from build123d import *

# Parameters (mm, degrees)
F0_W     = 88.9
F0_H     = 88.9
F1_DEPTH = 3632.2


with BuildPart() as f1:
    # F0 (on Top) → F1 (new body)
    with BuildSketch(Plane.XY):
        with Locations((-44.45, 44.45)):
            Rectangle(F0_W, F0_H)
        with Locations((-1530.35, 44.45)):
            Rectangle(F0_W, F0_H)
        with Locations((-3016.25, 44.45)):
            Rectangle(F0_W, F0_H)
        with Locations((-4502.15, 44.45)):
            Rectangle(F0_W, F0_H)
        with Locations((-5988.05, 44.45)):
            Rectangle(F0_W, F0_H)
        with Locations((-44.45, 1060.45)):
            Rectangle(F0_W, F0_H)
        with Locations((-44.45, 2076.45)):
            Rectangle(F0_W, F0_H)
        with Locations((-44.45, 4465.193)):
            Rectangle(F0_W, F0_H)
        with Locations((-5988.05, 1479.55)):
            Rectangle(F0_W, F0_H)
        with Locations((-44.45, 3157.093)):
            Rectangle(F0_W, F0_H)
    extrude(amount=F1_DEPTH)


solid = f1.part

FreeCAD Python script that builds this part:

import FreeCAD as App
import Part
import Sketcher
Q = App.Units.Quantity

doc = App.newDocument("Part")
body = doc.addObject("PartDesign::Body", "Body")
body.AllowCompound = True

# Sketch on XY plane
sketch1 = body.newObject("Sketcher::SketchObject", "Sketch")
sketch1.AttachmentSupport = (doc.getObject("XY_Plane"), [""])
sketch1.MapMode = "FlatFace"
sketch1.addGeometry(Part.LineSegment(App.Vector(-88.9, 88.9, 0), App.Vector(-88.9, 0, 0)), False)
sketch1.addGeometry(Part.LineSegment(App.Vector(-88.9, 0, 0), App.Vector(0, 0, 0)), False)
sketch1.addGeometry(Part.LineSegment(App.Vector(0, 0, 0), App.Vector(0, 88.9, 0)), False)
sketch1.addGeometry(Part.LineSegment(App.Vector(0, 88.9, 0), App.Vector(-88.9, 88.9, 0)), False)
sketch1.addGeometry(Part.LineSegment(App.Vector(-1574.8, 88.9, 0), App.Vector(-1574.8, 0, 0)), False)
sketch1.addGeometry(Part.LineSegment(App.Vector(-1574.8, 0, 0), App.Vector(-1485.9, 0, 0)), False)
sketch1.addGeometry(Part.LineSegment(App.Vector(-1485.9, 0, 0), App.Vector(-1485.9, 88.9, 0)), False)
sketch1.addGeometry(Part.LineSegment(App.Vector(-1485.9, 88.9, 0), App.Vector(-1574.8, 88.9, 0)), False)
sketch1.addGeometry(Part.LineSegment(App.Vector(-3060.7, 88.9, 0), App.Vector(-3060.7, 0, 0)), False)
sketch1.addGeometry(Part.LineSegment(App.Vector(-3060.7, 0, 0), App.Vector(-2971.8, 0, 0)), False)
sketch1.addGeometry(Part.LineSegment(App.Vector(-2971.8, 0, 0), App.Vector(-2971.8, 88.9, 0)), False)
sketch1.addGeometry(Part.LineSegment(App.Vector(-2971.8, 88.9, 0), App.Vector(-3060.7, 88.9, 0)), False)
sketch1.addGeometry(Part.LineSegment(App.Vector(-4546.6, 88.9, 0), App.Vector(-4546.6, 0, 0)), False)
sketch1.addGeometry(Part.LineSegment(App.Vector(-4546.6, 0, 0), App.Vector(-4457.7, 0, 0)), False)
sketch1.addGeometry(Part.LineSegment(App.Vector(-4457.7, 0, 0), App.Vector(-4457.7, 88.9, 0)), False)
sketch1.addGeometry(Part.LineSegment(App.Vector(-4457.7, 88.9, 0), App.Vector(-4546.6, 88.9, 0)), False)
sketch1.addGeometry(Part.LineSegment(App.Vector(-6032.5, 88.9, 0), App.Vector(-6032.5, 0, 0)), False)
sketch1.addGeometry(Part.LineSegment(App.Vector(-6032.5, 0, 0), App.Vector(-5943.6, 0, 0)), False)
sketch1.addGeometry(Part.LineSegment(App.Vector(-5943.6, 0, 0), App.Vector(-5943.6, 88.9, 0)), False)
sketch1.addGeometry(Part.LineSegment(App.Vector(-5943.6, 88.9, 0), App.Vector(-6032.5, 88.9, 0)), False)
sketch1.addGeometry(Part.LineSegment(App.Vector(-88.9, 1104.9, 0), App.Vector(-88.9, 1016, 0)), False)
sketch1.addGeometry(Part.LineSegment(App.Vector(-88.9, 1016, 0), App.Vector(0, 1016, 0)), False)
sketch1.addGeometry(Part.LineSegment(App.Vector(0, 1016, 0), App.Vector(0, 1104.9, 0)), False)
sketch1.addGeometry(Part.LineSegment(App.Vector(0, 1104.9, 0), App.Vector(-88.9, 1104.9, 0)), False)
sketch1.addGeometry(Part.LineSegment(App.Vector(-88.9, 2120.9, 0), App.Vector(-88.9, 2032, 0)), False)
sketch1.addGeometry(Part.LineSegment(App.Vector(-88.9, 2032, 0), App.Vector(0, 2032, 0)), False)
sketch1.addGeometry(Part.LineSegment(App.Vector(0, 2032, 0), App.Vector(0, 2120.9, 0)), False)
sketch1.addGeometry(Part.LineSegment(App.Vector(0, 2120.9, 0), App.Vector(-88.9, 2120.9, 0)), False)
sketch1.addGeometry(Part.LineSegment(App.Vector(-88.9, 4509.643, 0), App.Vector(-88.9, 4420.743, 0)), False)
sketch1.addGeometry(Part.LineSegment(App.Vector(-88.9, 4420.743, 0), App.Vector(0, 4420.743, 0)), False)
sketch1.addGeometry(Part.LineSegment(App.Vector(0, 4420.743, 0), App.Vector(0, 4509.643, 0)), False)
sketch1.addGeometry(Part.LineSegment(App.Vector(0, 4509.643, 0), App.Vector(-88.9, 4509.643, 0)), False)
sketch1.addGeometry(Part.LineSegment(App.Vector(-6032.5, 1524, 0), App.Vector(-6032.5, 1435.1, 0)), False)
sketch1.addGeometry(Part.LineSegment(App.Vector(-6032.5, 1435.1, 0), App.Vector(-5943.6, 1435.1, 0)), False)
sketch1.addGeometry(Part.LineSegment(App.Vector(-5943.6, 1435.1, 0), App.Vector(-5943.6, 1524, 0)), False)
sketch1.addGeometry(Part.LineSegment(App.Vector(-5943.6, 1524, 0), App.Vector(-6032.5, 1524, 0)), False)
sketch1.addGeometry(Part.LineSegment(App.Vector(-88.9, 3201.543, 0), App.Vector(-88.9, 3112.643, 0)), False)
sketch1.addGeometry(Part.LineSegment(App.Vector(-88.9, 3112.643, 0), App.Vector(0, 3112.643, 0)), False)
sketch1.addGeometry(Part.LineSegment(App.Vector(0, 3112.643, 0), App.Vector(0, 3201.543, 0)), False)
sketch1.addGeometry(Part.LineSegment(App.Vector(0, 3201.543, 0), App.Vector(-88.9, 3201.543, 0)), False)
sketch1.addConstraint(Sketcher.Constraint("Coincident", 0, 2, 1, 1))
sketch1.addConstraint(Sketcher.Constraint("Coincident", 1, 2, 2, 1))
sketch1.addConstraint(Sketcher.Constraint("Coincident", 2, 2, 3, 1))
sketch1.addConstraint(Sketcher.Constraint("Coincident", 3, 2, 0, 1))
sketch1.addConstraint(Sketcher.Constraint("Coincident", 4, 2, 5, 1))
sketch1.addConstraint(Sketcher.Constraint("Coincident", 5, 2, 6, 1))
sketch1.addConstraint(Sketcher.Constraint("Coincident", 6, 2, 7, 1))
sketch1.addConstraint(Sketcher.Constraint("Coincident", 7, 2, 4, 1))
sketch1.addConstraint(Sketcher.Constraint("Coincident", 8, 2, 9, 1))
sketch1.addConstraint(Sketcher.Constraint("Coincident", 9, 2, 10, 1))
sketch1.addConstraint(Sketcher.Constraint("Coincident", 10, 2, 11, 1))
sketch1.addConstraint(Sketcher.Constraint("Coincident", 11, 2, 8, 1))
sketch1.addConstraint(Sketcher.Constraint("Coincident", 12, 2, 13, 1))
sketch1.addConstraint(Sketcher.Constraint("Coincident", 13, 2, 14, 1))
sketch1.addConstraint(Sketcher.Constraint("Coincident", 14, 2, 15, 1))
sketch1.addConstraint(Sketcher.Constraint("Coincident", 15, 2, 12, 1))
sketch1.addConstraint(Sketcher.Constraint("Coincident", 16, 2, 17, 1))
sketch1.addConstraint(Sketcher.Constraint("Coincident", 17, 2, 18, 1))
sketch1.addConstraint(Sketcher.Constraint("Coincident", 18, 2, 19, 1))
sketch1.addConstraint(Sketcher.Constraint("Coincident", 19, 2, 16, 1))
sketch1.addConstraint(Sketcher.Constraint("Coincident", 20, 2, 21, 1))
sketch1.addConstraint(Sketcher.Constraint("Coincident", 21, 2, 22, 1))
sketch1.addConstraint(Sketcher.Constraint("Coincident", 22, 2, 23, 1))
sketch1.addConstraint(Sketcher.Constraint("Coincident", 23, 2, 20, 1))
sketch1.addConstraint(Sketcher.Constraint("Coincident", 24, 2, 25, 1))
sketch1.addConstraint(Sketcher.Constraint("Coincident", 25, 2, 26, 1))
sketch1.addConstraint(Sketcher.Constraint("Coincident", 26, 2, 27, 1))
sketch1.addConstraint(Sketcher.Constraint("Coincident", 27, 2, 24, 1))
sketch1.addConstraint(Sketcher.Constraint("Coincident", 28, 2, 29, 1))
sketch1.addConstraint(Sketcher.Constraint("Coincident", 29, 2, 30, 1))
sketch1.addConstraint(Sketcher.Constraint("Coincident", 30, 2, 31, 1))
sketch1.addConstraint(Sketcher.Constraint("Coincident", 31, 2, 28, 1))
sketch1.addConstraint(Sketcher.Constraint("Coincident", 32, 2, 33, 1))
sketch1.addConstraint(Sketcher.Constraint("Coincident", 33, 2, 34, 1))
sketch1.addConstraint(Sketcher.Constraint("Coincident", 34, 2, 35, 1))
sketch1.addConstraint(Sketcher.Constraint("Coincident", 35, 2, 32, 1))
sketch1.addConstraint(Sketcher.Constraint("Coincident", 36, 2, 37, 1))
sketch1.addConstraint(Sketcher.Constraint("Coincident", 37, 2, 38, 1))
sketch1.addConstraint(Sketcher.Constraint("Coincident", 38, 2, 39, 1))
sketch1.addConstraint(Sketcher.Constraint("Coincident", 39, 2, 36, 1))
sketch1.addConstraint(Sketcher.Constraint("Vertical", 0))
sketch1.addConstraint(Sketcher.Constraint("Horizontal", 1))
sketch1.addConstraint(Sketcher.Constraint("Vertical", 2))
sketch1.addConstraint(Sketcher.Constraint("Horizontal", 3))
sketch1.addConstraint(Sketcher.Constraint("Vertical", 4))
sketch1.addConstraint(Sketcher.Constraint("Horizontal", 5))
sketch1.addConstraint(Sketcher.Constraint("Vertical", 6))
sketch1.addConstraint(Sketcher.Constraint("Horizontal", 7))
sketch1.addConstraint(Sketcher.Constraint("Vertical", 8))
sketch1.addConstraint(Sketcher.Constraint("Horizontal", 9))
sketch1.addConstraint(Sketcher.Constraint("Vertical", 10))
sketch1.addConstraint(Sketcher.Constraint("Horizontal", 11))
sketch1.addConstraint(Sketcher.Constraint("Vertical", 12))
sketch1.addConstraint(Sketcher.Constraint("Horizontal", 13))
sketch1.addConstraint(Sketcher.Constraint("Vertical", 14))
sketch1.addConstraint(Sketcher.Constraint("Horizontal", 15))
sketch1.addConstraint(Sketcher.Constraint("Vertical", 16))
sketch1.addConstraint(Sketcher.Constraint("Horizontal", 17))
sketch1.addConstraint(Sketcher.Constraint("Vertical", 18))
sketch1.addConstraint(Sketcher.Constraint("Horizontal", 19))
sketch1.addConstraint(Sketcher.Constraint("Vertical", 20))
sketch1.addConstraint(Sketcher.Constraint("Horizontal", 21))
sketch1.addConstraint(Sketcher.Constraint("Vertical", 22))
sketch1.addConstraint(Sketcher.Constraint("Horizontal", 23))
sketch1.addConstraint(Sketcher.Constraint("Vertical", 24))
sketch1.addConstraint(Sketcher.Constraint("Horizontal", 25))
sketch1.addConstraint(Sketcher.Constraint("Vertical", 26))
sketch1.addConstraint(Sketcher.Constraint("Horizontal", 27))
sketch1.addConstraint(Sketcher.Constraint("Vertical", 28))
sketch1.addConstraint(Sketcher.Constraint("Horizontal", 29))
sketch1.addConstraint(Sketcher.Constraint("Vertical", 30))
sketch1.addConstraint(Sketcher.Constraint("Horizontal", 31))
sketch1.addConstraint(Sketcher.Constraint("Vertical", 32))
sketch1.addConstraint(Sketcher.Constraint("Horizontal", 33))
sketch1.addConstraint(Sketcher.Constraint("Vertical", 34))
sketch1.addConstraint(Sketcher.Constraint("Horizontal", 35))
sketch1.addConstraint(Sketcher.Constraint("Vertical", 36))
sketch1.addConstraint(Sketcher.Constraint("Horizontal", 37))
sketch1.addConstraint(Sketcher.Constraint("Vertical", 38))
sketch1.addConstraint(Sketcher.Constraint("Horizontal", 39))
sketch1.addConstraint(Sketcher.Constraint("Coincident", 1, 2, -1, 1))
sketch1.addConstraint(Sketcher.Constraint("PointOnObject", 4, 2, -1))
sketch1.addConstraint(Sketcher.Constraint("PointOnObject", 8, 2, -1))
sketch1.addConstraint(Sketcher.Constraint("PointOnObject", 12, 2, -1))
sketch1.addConstraint(Sketcher.Constraint("PointOnObject", 16, 2, -1))
sketch1.addConstraint(Sketcher.Constraint("PointOnObject", 21, 2, -2))
sketch1.addConstraint(Sketcher.Constraint("PointOnObject", 25, 2, -2))
sketch1.addConstraint(Sketcher.Constraint("PointOnObject", 29, 2, -2))
sketch1.addConstraint(Sketcher.Constraint("PointOnObject", 37, 2, -2))
sketch1.addConstraint(Sketcher.Constraint("Horizontal", 3, 2, 6, 2))
sketch1.addConstraint(Sketcher.Constraint("Horizontal", 7, 2, 10, 2))
sketch1.addConstraint(Sketcher.Constraint("Horizontal", 11, 2, 14, 2))
sketch1.addConstraint(Sketcher.Constraint("Horizontal", 15, 2, 18, 2))
sketch1.addConstraint(Sketcher.Constraint("Vertical", 3, 2, 20, 2))
sketch1.addConstraint(Sketcher.Constraint("Vertical", 23, 2, 24, 2))
sketch1.addConstraint(Sketcher.Constraint("Vertical", 27, 2, 28, 2))
sketch1.addConstraint(Sketcher.Constraint("Vertical", 19, 2, 32, 2))
sketch1.addConstraint(Sketcher.Constraint("Vertical", 18, 2, 33, 2))
sketch1.addConstraint(Sketcher.Constraint("Vertical", 31, 2, 36, 2))
sketch1.addConstraint(Sketcher.Constraint("Equal", 3, 5))
sketch1.addConstraint(Sketcher.Constraint("Equal", 7, 9))
sketch1.addConstraint(Sketcher.Constraint("Equal", 11, 13))
sketch1.addConstraint(Sketcher.Constraint("Equal", 15, 17))
sketch1.addConstraint(Sketcher.Constraint("Equal", 39, 0))
sketch1.addConstraint(Sketcher.Constraint("Equal", 18, 20))
sketch1.addConstraint(Sketcher.Constraint("Equal", 22, 24))
sketch1.addConstraint(Sketcher.Constraint("Equal", 26, 28))
sketch1.addConstraint(Sketcher.Constraint("Equal", 30, 32))
sketch1.addConstraint(Sketcher.Constraint("Equal", 34, 36))
sketch1.addConstraint(Sketcher.Constraint("DistanceX", 1, 1, 1, 2, Q("3.5 in")))
sketch1.addConstraint(Sketcher.Constraint("DistanceX", 4, 2, -1, 1, Q("62 in")))
sketch1.addConstraint(Sketcher.Constraint("DistanceX", 9, 2, -1, 1, Q("117 in")))
sketch1.addConstraint(Sketcher.Constraint("DistanceX", 12, 2, -1, 1, Q("179 in")))
sketch1.addConstraint(Sketcher.Constraint("DistanceX", 17, 2, -1, 1, Q("234 in")))
sketch1.addConstraint(Sketcher.Constraint("DistanceY", -1, 1, 20, 2, Q("40 in")))
sketch1.addConstraint(Sketcher.Constraint("DistanceY", -1, 1, 24, 2, Q("80 in")))
sketch1.addConstraint(Sketcher.Constraint("DistanceY", -1, 1, 34, 2, Q("60 in")))
sketch1.addConstraint(Sketcher.Constraint("DistanceY", 36, 2, 28, 2, Q("51.5 in")))
sketch1.addConstraint(Sketcher.Constraint("DistanceY", -1, 1, 28, 2, Q("174.045 in")))
pad1 = body.newObject("PartDesign::Pad", "Pad")
pad1.Profile = sketch1
pad1.Length = Q("143 in")

doc.recompute()
